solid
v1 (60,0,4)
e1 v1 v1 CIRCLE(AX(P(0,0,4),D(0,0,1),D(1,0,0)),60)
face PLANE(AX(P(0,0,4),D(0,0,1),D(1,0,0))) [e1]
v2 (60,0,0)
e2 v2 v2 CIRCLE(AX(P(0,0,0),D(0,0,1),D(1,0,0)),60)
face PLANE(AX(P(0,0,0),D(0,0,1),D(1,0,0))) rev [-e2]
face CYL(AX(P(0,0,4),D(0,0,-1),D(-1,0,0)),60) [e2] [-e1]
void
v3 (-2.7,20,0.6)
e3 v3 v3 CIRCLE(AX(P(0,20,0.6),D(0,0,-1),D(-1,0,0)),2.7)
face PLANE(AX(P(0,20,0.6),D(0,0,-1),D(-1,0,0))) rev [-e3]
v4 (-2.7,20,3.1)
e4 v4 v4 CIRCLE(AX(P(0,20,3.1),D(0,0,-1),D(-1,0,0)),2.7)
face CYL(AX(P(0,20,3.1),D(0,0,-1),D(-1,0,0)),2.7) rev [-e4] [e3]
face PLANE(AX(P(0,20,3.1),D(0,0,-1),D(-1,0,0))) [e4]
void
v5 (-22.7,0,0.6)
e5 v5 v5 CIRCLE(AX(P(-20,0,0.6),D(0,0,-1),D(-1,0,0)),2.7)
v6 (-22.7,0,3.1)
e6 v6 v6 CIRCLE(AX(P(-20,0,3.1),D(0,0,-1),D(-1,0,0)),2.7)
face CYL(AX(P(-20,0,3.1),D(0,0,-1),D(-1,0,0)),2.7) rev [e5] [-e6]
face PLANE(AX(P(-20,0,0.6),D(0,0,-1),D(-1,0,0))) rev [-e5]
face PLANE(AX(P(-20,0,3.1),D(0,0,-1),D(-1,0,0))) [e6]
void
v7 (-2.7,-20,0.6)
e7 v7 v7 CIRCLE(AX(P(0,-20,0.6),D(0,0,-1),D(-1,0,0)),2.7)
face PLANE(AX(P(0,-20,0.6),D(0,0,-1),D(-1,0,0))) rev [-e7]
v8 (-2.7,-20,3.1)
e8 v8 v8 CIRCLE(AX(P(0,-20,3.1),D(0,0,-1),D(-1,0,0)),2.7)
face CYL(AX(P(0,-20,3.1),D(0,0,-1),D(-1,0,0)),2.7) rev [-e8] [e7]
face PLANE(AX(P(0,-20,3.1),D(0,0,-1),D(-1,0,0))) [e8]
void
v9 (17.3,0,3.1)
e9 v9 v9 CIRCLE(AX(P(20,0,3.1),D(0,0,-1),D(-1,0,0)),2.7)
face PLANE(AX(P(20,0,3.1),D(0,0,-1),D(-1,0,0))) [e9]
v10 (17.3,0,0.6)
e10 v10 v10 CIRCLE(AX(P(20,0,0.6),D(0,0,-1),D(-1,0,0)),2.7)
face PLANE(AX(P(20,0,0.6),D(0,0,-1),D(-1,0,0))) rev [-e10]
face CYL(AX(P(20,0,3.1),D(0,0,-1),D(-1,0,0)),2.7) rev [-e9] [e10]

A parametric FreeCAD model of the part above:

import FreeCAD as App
import Part
import Sketcher
from FreeCAD import Vector

doc = App.newDocument("Part")
body = doc.addObject("PartDesign::Body", "Body")

# Sketch on XY plane
sketch1 = doc.addObject("Sketcher::SketchObject", "Sketch")
body.addObject(sketch1)
sketch1.AttachmentSupport = (doc.XY_Plane, [""])
sketch1.MapMode = "FlatFace"
sketch1.addGeometry(Part.Circle(Vector(0, 0, 0), Vector(0, 0, 1), 60), False)
sketch1.addConstraint(Sketcher.Constraint("Coincident", 0, 3, -1, 1))
sketch1.addConstraint(Sketcher.Constraint("Diameter", 0, 120.0))
pad1 = doc.addObject("PartDesign::Pad", "Pad")
body.addObject(pad1)
pad1.Profile = sketch1
pad1.Length = 4

# Sketch on XY plane
sketch2 = doc.addObject("Sketcher::SketchObject", "Sketch001")
body.addObject(sketch2)
sketch2.AttachmentSupport = (doc.XY_Plane, [""])
sketch2.MapMode = "FlatFace"
sketch2.AttachmentOffset = App.Placement(Vector(0, 0, 0.6), App.Rotation())
sketch2.addGeometry(Part.Circle(Vector(0, 20, 0), Vector(0, 0, 1), 2.7), False)
sketch2.addGeometry(Part.Circle(Vector(-20, 0, 0), Vector(0, 0, 1), 2.7), False)
sketch2.addGeometry(Part.Circle(Vector(0, -20, 0), Vector(0, 0, 1), 2.7), False)
sketch2.addGeometry(Part.Circle(Vector(20, 0, 0), Vector(0, 0, 1), 2.7), False)
sketch2.addConstraint(Sketcher.Constraint("Equal", 0, 1))
sketch2.addConstraint(Sketcher.Constraint("Equal", 1, 2))
sketch2.addConstraint(Sketcher.Constraint("Equal", 2, 3))
sketch2.addConstraint(Sketcher.Constraint("Symmetric", 0, 3, 2, 3, -1, 1))
sketch2.addConstraint(Sketcher.Constraint("Symmetric", 1, 3, 3, 3, -1, 1))
sketch2.addConstraint(Sketcher.Constraint("PointOnObject", 0, 3, -2))
sketch2.addConstraint(Sketcher.Constraint("PointOnObject", 1, 3, -1))
sketch2.addConstraint(Sketcher.Constraint("Diameter", 0, 5.4))
sketch2.addConstraint(Sketcher.Constraint("DistanceY", -1, 1, 0, 3, 20.0))
sketch2.addConstraint(Sketcher.Constraint("DistanceX", 1, 3, -1, 1, 20.0))
pocket1 = doc.addObject("PartDesign::Pocket", "Pocket")
body.addObject(pocket1)
pocket1.Profile = sketch2
pocket1.Length = 2.5
pocket1.Reversed = True

doc.recompute()
